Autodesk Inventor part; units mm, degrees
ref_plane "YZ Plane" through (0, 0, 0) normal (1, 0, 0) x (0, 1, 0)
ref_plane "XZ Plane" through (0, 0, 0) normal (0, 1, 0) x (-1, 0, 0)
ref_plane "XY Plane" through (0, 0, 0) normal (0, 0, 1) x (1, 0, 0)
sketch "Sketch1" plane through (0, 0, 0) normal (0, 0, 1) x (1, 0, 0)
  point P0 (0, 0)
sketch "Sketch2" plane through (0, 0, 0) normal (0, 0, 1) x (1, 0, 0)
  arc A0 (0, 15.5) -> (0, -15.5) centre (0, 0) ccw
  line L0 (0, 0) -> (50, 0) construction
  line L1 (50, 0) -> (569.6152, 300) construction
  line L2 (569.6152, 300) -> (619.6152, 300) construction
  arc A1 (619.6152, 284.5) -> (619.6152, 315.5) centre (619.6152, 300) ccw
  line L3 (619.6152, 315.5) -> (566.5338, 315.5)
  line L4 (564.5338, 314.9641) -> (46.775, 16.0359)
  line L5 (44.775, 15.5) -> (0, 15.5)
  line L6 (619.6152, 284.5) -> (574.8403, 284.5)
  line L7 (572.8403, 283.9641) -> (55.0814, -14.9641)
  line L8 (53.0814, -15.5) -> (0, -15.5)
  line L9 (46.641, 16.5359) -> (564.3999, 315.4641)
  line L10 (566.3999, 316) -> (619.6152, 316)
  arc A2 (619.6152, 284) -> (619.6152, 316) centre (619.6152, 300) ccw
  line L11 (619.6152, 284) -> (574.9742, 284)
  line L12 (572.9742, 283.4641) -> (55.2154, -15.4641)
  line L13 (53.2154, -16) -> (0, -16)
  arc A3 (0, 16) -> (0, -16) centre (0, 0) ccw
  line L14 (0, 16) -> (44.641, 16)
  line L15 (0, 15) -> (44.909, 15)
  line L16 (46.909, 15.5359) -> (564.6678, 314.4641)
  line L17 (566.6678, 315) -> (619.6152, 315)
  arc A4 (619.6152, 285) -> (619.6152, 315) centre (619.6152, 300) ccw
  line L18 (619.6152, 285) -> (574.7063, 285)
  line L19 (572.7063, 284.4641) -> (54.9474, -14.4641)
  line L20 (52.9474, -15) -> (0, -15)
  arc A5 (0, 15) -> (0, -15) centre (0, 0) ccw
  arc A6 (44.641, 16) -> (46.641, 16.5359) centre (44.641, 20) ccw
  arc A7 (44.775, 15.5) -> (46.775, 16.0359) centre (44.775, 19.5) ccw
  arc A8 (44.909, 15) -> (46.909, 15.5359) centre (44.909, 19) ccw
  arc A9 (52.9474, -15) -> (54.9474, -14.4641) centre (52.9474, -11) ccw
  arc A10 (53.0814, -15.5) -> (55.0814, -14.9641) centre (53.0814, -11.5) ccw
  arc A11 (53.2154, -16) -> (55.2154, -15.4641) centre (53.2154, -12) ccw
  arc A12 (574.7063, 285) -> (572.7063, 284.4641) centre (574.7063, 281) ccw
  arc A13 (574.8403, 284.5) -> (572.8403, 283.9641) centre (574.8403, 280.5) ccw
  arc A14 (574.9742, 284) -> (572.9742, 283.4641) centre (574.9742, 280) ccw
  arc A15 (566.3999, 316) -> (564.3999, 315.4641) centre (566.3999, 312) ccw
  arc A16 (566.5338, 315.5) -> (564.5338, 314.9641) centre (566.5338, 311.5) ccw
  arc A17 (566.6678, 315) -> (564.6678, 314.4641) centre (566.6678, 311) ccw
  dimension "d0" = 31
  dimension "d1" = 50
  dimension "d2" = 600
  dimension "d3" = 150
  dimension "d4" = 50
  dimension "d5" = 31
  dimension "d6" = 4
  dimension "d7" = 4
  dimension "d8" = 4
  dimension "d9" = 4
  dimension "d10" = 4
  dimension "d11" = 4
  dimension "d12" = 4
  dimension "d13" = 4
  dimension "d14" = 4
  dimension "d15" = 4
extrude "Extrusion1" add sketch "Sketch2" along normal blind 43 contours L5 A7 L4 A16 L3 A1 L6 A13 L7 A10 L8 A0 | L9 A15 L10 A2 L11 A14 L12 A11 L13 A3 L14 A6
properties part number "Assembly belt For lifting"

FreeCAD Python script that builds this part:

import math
import FreeCAD as App
import Part
import Sketcher
from FreeCAD import Vector
Q = App.Units.Quantity

doc = App.newDocument("Part")
params = doc.addObject("Spreadsheet::Sheet", "Params")
for row, (alias, value) in enumerate([
    ("sketch1_radius", "4 mm"),
    ("sketch1_radius2", "16 mm"),
    ("sketch1_radius3", "15 mm"),
    ("pad1_length", "43 mm"),
], start=1):
    params.set(f"A{row}", alias)
    params.set(f"B{row}", "=" + value)
    params.setAlias(f"B{row}", alias)

body = doc.addObject("PartDesign::Body", "Body")

# Sketch on XY plane
sketch1 = body.newObject("Sketcher::SketchObject", "Sketch")
sketch1.AttachmentSupport = (doc.getObject("XY_Plane"), [""])
sketch1.MapMode = "FlatFace"
sketch1.addGeometry(Part.LineSegment(Vector(564.4, 315.5, 0), Vector(46.6, 16.5, 0)), False)
sketch1.addGeometry(Part.ArcOfCircle(Part.Circle(Vector(44.6, 20, 0), Vector(0, 0, 1), 4), math.radians(-90), math.radians(-60)), False)
sketch1.addGeometry(Part.LineSegment(Vector(44.6, 16, 0), Vector(0, 16, 0)), False)
sketch1.addGeometry(Part.ArcOfCircle(Part.Circle(Vector(0, 0, 0), Vector(0, 0, 1), 16), math.radians(90), math.radians(270)), False)
sketch1.addGeometry(Part.LineSegment(Vector(0, -16, 0), Vector(53.2, -16, 0)), False)
sketch1.addGeometry(Part.ArcOfCircle(Part.Circle(Vector(53.2, -12, 0), Vector(0, 0, 1), 4), math.radians(-90), math.radians(-60)), False)
sketch1.addGeometry(Part.LineSegment(Vector(55.2, -15.5, 0), Vector(573, 283.5, 0)), False)
sketch1.addGeometry(Part.ArcOfCircle(Part.Circle(Vector(575, 280, 0), Vector(0, 0, 1), 4), math.radians(90), math.radians(120)), False)
sketch1.addGeometry(Part.LineSegment(Vector(575, 284, 0), Vector(619.6, 284, 0)), False)
sketch1.addGeometry(Part.ArcOfCircle(Part.Circle(Vector(619.6, 300, 0), Vector(0, 0, 1), 16), math.radians(-90), math.radians(90)), False)
sketch1.addGeometry(Part.LineSegment(Vector(619.6, 316, 0), Vector(566.4, 316, 0)), False)
sketch1.addGeometry(Part.ArcOfCircle(Part.Circle(Vector(566.4, 312, 0), Vector(0, 0, 1), 4), math.radians(90), math.radians(120)), False)
sketch1.addGeometry(Part.ArcOfCircle(Part.Circle(Vector(0, 0, 0), Vector(0, 0, 1), 15), math.radians(90), math.radians(270)), False)
sketch1.addGeometry(Part.LineSegment(Vector(0, 15, 0), Vector(44.9, 15, 0)), False)
sketch1.addGeometry(Part.ArcOfCircle(Part.Circle(Vector(44.9, 19, 0), Vector(0, 0, 1), 4), math.radians(-90), math.radians(-60)), False)
sketch1.addGeometry(Part.LineSegment(Vector(46.9, 15.5, 0), Vector(564.7, 314.5, 0)), False)
sketch1.addGeometry(Part.ArcOfCircle(Part.Circle(Vector(566.7, 311, 0), Vector(0, 0, 1), 4), math.radians(90), math.radians(120)), False)
sketch1.addGeometry(Part.LineSegment(Vector(566.7, 315, 0), Vector(619.6, 315, 0)), False)
sketch1.addGeometry(Part.ArcOfCircle(Part.Circle(Vector(619.6, 300, 0), Vector(0, 0, 1), 15), math.radians(-90), math.radians(90)), False)
sketch1.addGeometry(Part.LineSegment(Vector(619.6, 285, 0), Vector(574.7, 285, 0)), False)
sketch1.addGeometry(Part.ArcOfCircle(Part.Circle(Vector(574.7, 281, 0), Vector(0, 0, 1), 4), math.radians(90), math.radians(120)), False)
sketch1.addGeometry(Part.LineSegment(Vector(572.7, 284.5, 0), Vector(54.9, -14.5, 0)), False)
sketch1.addGeometry(Part.ArcOfCircle(Part.Circle(Vector(52.9, -11, 0), Vector(0, 0, 1), 4), math.radians(-90), math.radians(-60)), False)
sketch1.addGeometry(Part.LineSegment(Vector(52.9, -15, 0), Vector(0, -15, 0)), False)
sketch1.addConstraint(Sketcher.Constraint("Tangent", 0, 2, 1, 2))
sketch1.addConstraint(Sketcher.Constraint("Tangent", 1, 1, 2, 1))
sketch1.addConstraint(Sketcher.Constraint("Tangent", 2, 2, 3, 1))
sketch1.addConstraint(Sketcher.Constraint("Tangent", 3, 2, 4, 1))
sketch1.addConstraint(Sketcher.Constraint("Tangent", 4, 2, 5, 1))
sketch1.addConstraint(Sketcher.Constraint("Tangent", 5, 2, 6, 1))
sketch1.addConstraint(Sketcher.Constraint("Tangent", 6, 2, 7, 2))
sketch1.addConstraint(Sketcher.Constraint("Tangent", 7, 1, 8, 1))
sketch1.addConstraint(Sketcher.Constraint("Tangent", 8, 2, 9, 1))
sketch1.addConstraint(Sketcher.Constraint("Tangent", 9, 2, 10, 1))
sketch1.addConstraint(Sketcher.Constraint("Tangent", 10, 2, 11, 1))
sketch1.addConstraint(Sketcher.Constraint("Tangent", 11, 2, 0, 1))
sketch1.addConstraint(Sketcher.Constraint("Tangent", 12, 1, 13, 1))
sketch1.addConstraint(Sketcher.Constraint("Tangent", 13, 2, 14, 1))
sketch1.addConstraint(Sketcher.Constraint("Tangent", 14, 2, 15, 1))
sketch1.addConstraint(Sketcher.Constraint("Tangent", 15, 2, 16, 2))
sketch1.addConstraint(Sketcher.Constraint("Tangent", 16, 1, 17, 1))
sketch1.addConstraint(Sketcher.Constraint("Tangent", 17, 2, 18, 2))
sketch1.addConstraint(Sketcher.Constraint("Tangent", 18, 1, 19, 1))
sketch1.addConstraint(Sketcher.Constraint("Tangent", 19, 2, 20, 1))
sketch1.addConstraint(Sketcher.Constraint("Tangent", 20, 2, 21, 1))
sketch1.addConstraint(Sketcher.Constraint("Tangent", 21, 2, 22, 2))
sketch1.addConstraint(Sketcher.Constraint("Tangent", 22, 1, 23, 1))
sketch1.addConstraint(Sketcher.Constraint("Tangent", 23, 2, 12, 2))
sketch1.addConstraint(Sketcher.Constraint("Horizontal", 2))
sketch1.addConstraint(Sketcher.Constraint("Horizontal", 4))
sketch1.addConstraint(Sketcher.Constraint("Horizontal", 8))
sketch1.addConstraint(Sketcher.Constraint("Horizontal", 10))
sketch1.addConstraint(Sketcher.Constraint("Horizontal", 13))
sketch1.addConstraint(Sketcher.Constraint("Horizontal", 17))
sketch1.addConstraint(Sketcher.Constraint("Horizontal", 19))
sketch1.addConstraint(Sketcher.Constraint("Horizontal", 23))
sketch1.addConstraint(Sketcher.Constraint("Coincident", 3, 3, -1, 1))
sketch1.addConstraint(Sketcher.Constraint("Coincident", 12, 3, -1, 1))
sketch1.addConstraint(Sketcher.Constraint("Coincident", 18, 3, 9, 3))
sketch1.addConstraint(Sketcher.Constraint("Equal", 1, 5))
sketch1.addConstraint(Sketcher.Constraint("Equal", 5, 7))
sketch1.addConstraint(Sketcher.Constraint("Equal", 3, 9))
sketch1.addConstraint(Sketcher.Constraint("Equal", 7, 11))
sketch1.addConstraint(Sketcher.Constraint("Equal", 11, 14))
sketch1.addConstraint(Sketcher.Constraint("Equal", 14, 16))
sketch1.addConstraint(Sketcher.Constraint("Equal", 12, 18))
sketch1.addConstraint(Sketcher.Constraint("Equal", 16, 20))
sketch1.addConstraint(Sketcher.Constraint("Equal", 20, 22))
sketch1.addConstraint(Sketcher.Constraint("Parallel", 0, 6))
sketch1.addConstraint(Sketcher.Constraint("Parallel", 6, 15))
sketch1.addConstraint(Sketcher.Constraint("Parallel", 15, 21))
sketch1.addConstraint(Sketcher.Constraint("Equal", 2, 8))
sketch1.addConstraint(Sketcher.Constraint("Equal", 13, 19))
sketch1.addConstraint(Sketcher.Constraint("Radius", 1, Q("4 mm")))
sketch1.addConstraint(Sketcher.Constraint("Angle", 0, Q("-150 deg")))
sketch1.addConstraint(Sketcher.Constraint("Radius", 3, Q("16 mm")))
sketch1.addConstraint(Sketcher.Constraint("Radius", 12, Q("15 mm")))
sketch1.addConstraint(Sketcher.Constraint("DistanceY", -1, 1, 7, 3, Q("280 mm")))
sketch1.addConstraint(Sketcher.Constraint("DistanceX", -1, 1, 11, 3, Q("566.4 mm")))
sketch1.addConstraint(Sketcher.Constraint("DistanceX", 13, 1, 13, 2, Q("44.909 mm")))
sketch1.addConstraint(Sketcher.Constraint("DistanceX", 4, 1, 4, 2, Q("53.2154 mm")))
sketch1.setExpression("Constraints[49]", "Params.sketch1_radius")
sketch1.setExpression("Constraints[51]", "Params.sketch1_radius2")
sketch1.setExpression("Constraints[52]", "Params.sketch1_radius3")
pad1 = body.newObject("PartDesign::Pad", "Pad")
pad1.Profile = sketch1
pad1.setExpression("Length", "Params.pad1_length")

doc.recompute()
